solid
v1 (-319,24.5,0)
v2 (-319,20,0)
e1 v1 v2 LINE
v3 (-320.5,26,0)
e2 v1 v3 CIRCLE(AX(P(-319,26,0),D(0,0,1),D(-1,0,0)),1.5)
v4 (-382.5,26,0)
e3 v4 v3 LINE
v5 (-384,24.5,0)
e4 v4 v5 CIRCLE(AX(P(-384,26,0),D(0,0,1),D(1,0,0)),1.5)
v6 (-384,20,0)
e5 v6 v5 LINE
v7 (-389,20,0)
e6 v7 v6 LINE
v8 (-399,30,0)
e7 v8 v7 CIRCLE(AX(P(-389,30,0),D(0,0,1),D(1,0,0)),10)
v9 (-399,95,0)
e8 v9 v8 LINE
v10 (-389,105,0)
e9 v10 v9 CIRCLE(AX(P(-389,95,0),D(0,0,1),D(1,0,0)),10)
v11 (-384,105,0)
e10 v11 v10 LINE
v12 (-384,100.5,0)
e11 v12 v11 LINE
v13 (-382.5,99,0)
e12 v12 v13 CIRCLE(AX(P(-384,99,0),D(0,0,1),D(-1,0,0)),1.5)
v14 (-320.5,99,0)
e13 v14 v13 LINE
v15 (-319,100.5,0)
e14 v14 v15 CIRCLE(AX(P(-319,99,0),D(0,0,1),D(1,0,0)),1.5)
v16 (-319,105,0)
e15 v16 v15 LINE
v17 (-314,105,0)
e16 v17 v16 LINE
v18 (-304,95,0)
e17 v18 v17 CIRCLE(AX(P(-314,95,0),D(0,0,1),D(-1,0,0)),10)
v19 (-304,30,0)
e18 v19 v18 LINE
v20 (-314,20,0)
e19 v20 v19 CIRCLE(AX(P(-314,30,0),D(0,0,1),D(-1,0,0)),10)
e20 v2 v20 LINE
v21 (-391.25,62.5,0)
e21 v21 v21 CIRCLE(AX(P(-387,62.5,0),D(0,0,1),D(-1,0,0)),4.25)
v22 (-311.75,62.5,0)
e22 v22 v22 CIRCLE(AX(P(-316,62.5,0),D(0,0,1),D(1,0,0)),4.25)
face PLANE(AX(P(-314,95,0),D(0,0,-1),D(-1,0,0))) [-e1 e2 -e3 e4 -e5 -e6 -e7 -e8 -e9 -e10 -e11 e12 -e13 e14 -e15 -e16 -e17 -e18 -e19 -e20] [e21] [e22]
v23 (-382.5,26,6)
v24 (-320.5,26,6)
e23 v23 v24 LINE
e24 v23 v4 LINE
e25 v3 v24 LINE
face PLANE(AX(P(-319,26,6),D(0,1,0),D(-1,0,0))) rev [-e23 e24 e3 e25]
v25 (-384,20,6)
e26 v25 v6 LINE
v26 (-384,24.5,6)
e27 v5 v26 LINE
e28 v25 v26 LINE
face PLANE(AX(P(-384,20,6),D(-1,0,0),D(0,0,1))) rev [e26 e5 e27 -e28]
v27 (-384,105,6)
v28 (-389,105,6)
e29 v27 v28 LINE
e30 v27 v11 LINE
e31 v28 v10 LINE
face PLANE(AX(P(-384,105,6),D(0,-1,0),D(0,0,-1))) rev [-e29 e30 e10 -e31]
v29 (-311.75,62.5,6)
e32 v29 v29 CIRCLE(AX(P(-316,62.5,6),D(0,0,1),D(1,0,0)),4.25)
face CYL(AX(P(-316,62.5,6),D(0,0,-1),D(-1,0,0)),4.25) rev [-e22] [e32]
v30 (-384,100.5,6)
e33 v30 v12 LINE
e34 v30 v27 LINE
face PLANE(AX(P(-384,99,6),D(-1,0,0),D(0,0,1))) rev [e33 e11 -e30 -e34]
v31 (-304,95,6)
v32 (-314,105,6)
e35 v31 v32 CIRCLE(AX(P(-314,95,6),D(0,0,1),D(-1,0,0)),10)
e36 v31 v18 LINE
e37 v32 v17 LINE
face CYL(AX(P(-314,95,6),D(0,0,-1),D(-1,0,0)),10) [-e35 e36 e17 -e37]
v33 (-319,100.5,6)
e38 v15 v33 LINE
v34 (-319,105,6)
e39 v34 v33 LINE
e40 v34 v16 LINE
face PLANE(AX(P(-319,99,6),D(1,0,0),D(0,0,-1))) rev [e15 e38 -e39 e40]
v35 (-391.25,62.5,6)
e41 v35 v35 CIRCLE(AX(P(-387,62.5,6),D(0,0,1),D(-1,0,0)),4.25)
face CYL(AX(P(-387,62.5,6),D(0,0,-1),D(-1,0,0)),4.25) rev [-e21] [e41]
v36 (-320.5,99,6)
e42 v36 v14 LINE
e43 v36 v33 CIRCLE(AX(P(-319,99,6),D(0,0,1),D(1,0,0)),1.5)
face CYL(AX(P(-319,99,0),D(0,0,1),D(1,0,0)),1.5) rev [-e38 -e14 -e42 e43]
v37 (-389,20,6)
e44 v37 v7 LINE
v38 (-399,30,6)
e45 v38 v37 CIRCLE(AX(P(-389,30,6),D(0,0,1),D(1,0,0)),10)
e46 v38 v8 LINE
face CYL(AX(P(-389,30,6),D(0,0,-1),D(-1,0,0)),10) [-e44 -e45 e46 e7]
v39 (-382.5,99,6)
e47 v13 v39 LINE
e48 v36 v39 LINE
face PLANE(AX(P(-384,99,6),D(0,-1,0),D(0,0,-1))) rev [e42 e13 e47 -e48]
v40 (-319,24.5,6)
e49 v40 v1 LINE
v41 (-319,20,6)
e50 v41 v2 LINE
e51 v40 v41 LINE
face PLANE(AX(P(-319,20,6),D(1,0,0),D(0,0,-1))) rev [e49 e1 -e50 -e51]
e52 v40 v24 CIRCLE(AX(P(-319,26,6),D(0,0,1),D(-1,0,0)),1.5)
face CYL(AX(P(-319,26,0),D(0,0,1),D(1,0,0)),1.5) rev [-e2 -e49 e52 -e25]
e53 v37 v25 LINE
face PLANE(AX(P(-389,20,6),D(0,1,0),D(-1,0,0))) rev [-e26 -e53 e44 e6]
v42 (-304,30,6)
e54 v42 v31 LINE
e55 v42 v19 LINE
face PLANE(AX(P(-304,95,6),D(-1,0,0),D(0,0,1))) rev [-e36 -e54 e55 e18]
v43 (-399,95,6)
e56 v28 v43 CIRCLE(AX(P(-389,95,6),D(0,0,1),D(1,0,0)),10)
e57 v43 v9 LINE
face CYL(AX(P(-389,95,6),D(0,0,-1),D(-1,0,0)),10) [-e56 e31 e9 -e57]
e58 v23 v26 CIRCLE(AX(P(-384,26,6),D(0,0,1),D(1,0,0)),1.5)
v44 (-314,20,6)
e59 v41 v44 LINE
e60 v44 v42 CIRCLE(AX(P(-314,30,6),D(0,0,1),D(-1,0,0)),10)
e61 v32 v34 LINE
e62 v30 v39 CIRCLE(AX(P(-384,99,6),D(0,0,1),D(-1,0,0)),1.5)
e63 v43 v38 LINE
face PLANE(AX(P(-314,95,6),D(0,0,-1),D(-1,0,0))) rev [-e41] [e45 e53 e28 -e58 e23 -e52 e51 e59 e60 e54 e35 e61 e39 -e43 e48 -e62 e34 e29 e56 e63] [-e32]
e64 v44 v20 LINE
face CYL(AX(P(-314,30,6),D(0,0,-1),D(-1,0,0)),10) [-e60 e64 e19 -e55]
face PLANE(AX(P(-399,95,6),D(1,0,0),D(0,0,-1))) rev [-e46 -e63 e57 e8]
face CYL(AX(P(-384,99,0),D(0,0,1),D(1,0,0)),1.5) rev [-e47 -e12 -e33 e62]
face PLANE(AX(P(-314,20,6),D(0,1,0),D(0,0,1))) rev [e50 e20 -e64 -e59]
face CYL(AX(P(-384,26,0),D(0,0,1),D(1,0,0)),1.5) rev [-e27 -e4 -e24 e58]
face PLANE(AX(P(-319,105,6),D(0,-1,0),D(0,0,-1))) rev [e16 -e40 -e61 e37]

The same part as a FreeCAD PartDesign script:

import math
import FreeCAD as App
import Part
import Sketcher

V = App.Vector

doc = App.newDocument("Part")
body = doc.addObject("PartDesign::Body", "Body")

sketch1 = body.newObject("Sketcher::SketchObject", "Sketch")
sketch1.AttachmentSupport = (doc.getObject("XY_Plane"), [""])
sketch1.MapMode = "FlatFace"
sketch1.addGeometry(Part.LineSegment(V(-319, 99, 0), V(-384, 99, 0)), False)
sketch1.addGeometry(Part.LineSegment(V(-384, 99, 0), V(-384, 105, 0)), False)
sketch1.addGeometry(Part.LineSegment(V(-384, 105, 0), V(-389, 105, 0)), False)
sketch1.addGeometry(Part.ArcOfCircle(Part.Circle(V(-389, 95, 0), V(0, 0, 1), 10), math.radians(90), math.radians(180)), False)
sketch1.addGeometry(Part.LineSegment(V(-399, 95, 0), V(-399, 30, 0)), False)
sketch1.addGeometry(Part.ArcOfCircle(Part.Circle(V(-389, 30, 0), V(0, 0, 1), 10), math.radians(180), math.radians(270)), False)
sketch1.addGeometry(Part.LineSegment(V(-389, 20, 0), V(-384, 20, 0)), False)
sketch1.addGeometry(Part.LineSegment(V(-384, 20, 0), V(-384, 26, 0)), False)
sketch1.addGeometry(Part.LineSegment(V(-384, 26, 0), V(-319, 26, 0)), False)
sketch1.addGeometry(Part.LineSegment(V(-319, 26, 0), V(-319, 20, 0)), False)
sketch1.addGeometry(Part.LineSegment(V(-319, 20, 0), V(-314, 20, 0)), False)
sketch1.addGeometry(Part.ArcOfCircle(Part.Circle(V(-314, 30, 0), V(0, 0, 1), 10), math.radians(-90), math.radians(0)), False)
sketch1.addGeometry(Part.LineSegment(V(-304, 30, 0), V(-304, 95, 0)), False)
sketch1.addGeometry(Part.ArcOfCircle(Part.Circle(V(-314, 95, 0), V(0, 0, 1), 10), math.radians(0), math.radians(90)), False)
sketch1.addGeometry(Part.LineSegment(V(-314, 105, 0), V(-319, 105, 0)), False)
sketch1.addGeometry(Part.LineSegment(V(-319, 105, 0), V(-319, 99, 0)), False)
sketch1.addGeometry(Part.Circle(V(-316, 62.5, 0), V(0, 0, 1), 4.2), False)
sketch1.addGeometry(Part.Circle(V(-387, 62.5, 0), V(0, 0, 1), 4.2), False)
sketch1.addConstraint(Sketcher.Constraint("Coincident", 0, 2, 1, 1))
sketch1.addConstraint(Sketcher.Constraint("Coincident", 1, 2, 2, 1))
sketch1.addConstraint(Sketcher.Constraint("Tangent", 2, 2, 3, 1))
sketch1.addConstraint(Sketcher.Constraint("Tangent", 3, 2, 4, 1))
sketch1.addConstraint(Sketcher.Constraint("Tangent", 4, 2, 5, 1))
sketch1.addConstraint(Sketcher.Constraint("Tangent", 5, 2, 6, 1))
sketch1.addConstraint(Sketcher.Constraint("Coincident", 6, 2, 7, 1))
sketch1.addConstraint(Sketcher.Constraint("Coincident", 7, 2, 8, 1))
sketch1.addConstraint(Sketcher.Constraint("Coincident", 8, 2, 9, 1))
sketch1.addConstraint(Sketcher.Constraint("Coincident", 9, 2, 10, 1))
sketch1.addConstraint(Sketcher.Constraint("Tangent", 10, 2, 11, 1))
sketch1.addConstraint(Sketcher.Constraint("Tangent", 11, 2, 12, 1))
sketch1.addConstraint(Sketcher.Constraint("Tangent", 12, 2, 13, 1))
sketch1.addConstraint(Sketcher.Constraint("Tangent", 13, 2, 14, 1))
sketch1.addConstraint(Sketcher.Constraint("Coincident", 14, 2, 15, 1))
sketch1.addConstraint(Sketcher.Constraint("Coincident", 15, 2, 0, 1))
sketch1.addConstraint(Sketcher.Constraint("Horizontal", 0))
sketch1.addConstraint(Sketcher.Constraint("Vertical", 1))
sketch1.addConstraint(Sketcher.Constraint("Horizontal", 2))
sketch1.addConstraint(Sketcher.Constraint("Vertical", 4))
sketch1.addConstraint(Sketcher.Constraint("Horizontal", 6))
sketch1.addConstraint(Sketcher.Constraint("Vertical", 7))
sketch1.addConstraint(Sketcher.Constraint("Horizontal", 8))
sketch1.addConstraint(Sketcher.Constraint("Vertical", 9))
sketch1.addConstraint(Sketcher.Constraint("Horizontal", 10))
sketch1.addConstraint(Sketcher.Constraint("Vertical", 12))
sketch1.addConstraint(Sketcher.Constraint("Horizontal", 14))
sketch1.addConstraint(Sketcher.Constraint("Vertical", 15))
sketch1.addConstraint(Sketcher.Constraint("Equal", 3, 5))
sketch1.addConstraint(Sketcher.Constraint("Equal", 5, 11))
sketch1.addConstraint(Sketcher.Constraint("Equal", 11, 13))
sketch1.addConstraint(Sketcher.Constraint("Equal", 16, 17))
sketch1.addConstraint(Sketcher.Constraint("Horizontal", 5, 3, 11, 3))
sketch1.addConstraint(Sketcher.Constraint("Horizontal", 3, 3, 13, 3))
sketch1.addConstraint(Sketcher.Constraint("Horizontal", 16, 3, 17, 3))
sketch1.addConstraint(Sketcher.Constraint("Vertical", 1, 2, 6, 2))
sketch1.addConstraint(Sketcher.Constraint("Vertical", 9, 2, 14, 2))
sketch1.addConstraint(Sketcher.Constraint("Equal", 6, 10))
sketch1.addConstraint(Sketcher.Constraint("Equal", 8, 4))
sketch1.addConstraint(Sketcher.Constraint("Equal", 1, 7))
sketch1.addConstraint(Sketcher.Constraint("Radius", 3, 10.0))
sketch1.addConstraint(Sketcher.Constraint("Diameter", 16, 8.5))
sketch1.addConstraint(Sketcher.Constraint("DistanceX", 0, 2, 0, 1, 65.0))
sketch1.addConstraint(Sketcher.Constraint("DistanceX", 2, 2, 2, 1, 5.0))
sketch1.addConstraint(Sketcher.Constraint("DistanceY", 1, 1, 1, 2, 6.0))
sketch1.addConstraint(Sketcher.Constraint("DistanceX", 3, 3, -1, 1, 389.0))
sketch1.addConstraint(Sketcher.Constraint("DistanceY", -1, 1, 3, 3, 95.0))
sketch1.addConstraint(Sketcher.Constraint("DistanceX", 16, 3, -1, 1, 316.0))
sketch1.addConstraint(Sketcher.Constraint("DistanceX", 17, 3, -1, 1, 387.0))
sketch1.addConstraint(Sketcher.Constraint("DistanceY", -1, 1, 16, 3, 62.5))
pad1 = body.newObject("PartDesign::Pad", "Pad")
pad1.Profile = sketch1
pad1.Length = 6

sketch2 = body.newObject("Sketcher::SketchObject", "Sketch001")
sketch2.AttachmentSupport = (doc.getObject("XY_Plane"), [""])
sketch2.MapMode = "FlatFace"
sketch2.AttachmentOffset = App.Placement(V(0, 0, 6), App.Rotation())
sketch2.addGeometry(Part.Circle(V(-384, 26, 0), V(0, 0, 1), 1.5), False)
sketch2.addGeometry(Part.Circle(V(-319, 26, 0), V(0, 0, 1), 1.5), False)
sketch2.addGeometry(Part.Circle(V(-384, 99, 0), V(0, 0, 1), 1.5), False)
sketch2.addGeometry(Part.Circle(V(-319, 99, 0), V(0, 0, 1), 1.5), False)
sketch2.addConstraint(Sketcher.Constraint("Equal", 0, 1))
sketch2.addConstraint(Sketcher.Constraint("Equal", 1, 2))
sketch2.addConstraint(Sketcher.Constraint("Equal", 2, 3))
sketch2.addConstraint(Sketcher.Constraint("Horizontal", 0, 3, 1, 3))
sketch2.addConstraint(Sketcher.Constraint("Horizontal", 2, 3, 3, 3))
sketch2.addConstraint(Sketcher.Constraint("Vertical", 0, 3, 2, 3))
sketch2.addConstraint(Sketcher.Constraint("Vertical", 1, 3, 3, 3))
sketch2.addConstraint(Sketcher.Constraint("Diameter", 0, 3.0))
sketch2.addConstraint(Sketcher.Constraint("DistanceX", 0, 3, -1, 1, 384.0))
sketch2.addConstraint(Sketcher.Constraint("DistanceY", -1, 1, 0, 3, 26.0))
sketch2.addConstraint(Sketcher.Constraint("DistanceX", 1, 3, -1, 1, 319.0))
sketch2.addConstraint(Sketcher.Constraint("DistanceY", -1, 1, 2, 3, 99.0))
pocket1 = body.newObject("PartDesign::Pocket", "Pocket")
pocket1.Profile = sketch2
pocket1.Type = "ThroughAll"

doc.recompute()
